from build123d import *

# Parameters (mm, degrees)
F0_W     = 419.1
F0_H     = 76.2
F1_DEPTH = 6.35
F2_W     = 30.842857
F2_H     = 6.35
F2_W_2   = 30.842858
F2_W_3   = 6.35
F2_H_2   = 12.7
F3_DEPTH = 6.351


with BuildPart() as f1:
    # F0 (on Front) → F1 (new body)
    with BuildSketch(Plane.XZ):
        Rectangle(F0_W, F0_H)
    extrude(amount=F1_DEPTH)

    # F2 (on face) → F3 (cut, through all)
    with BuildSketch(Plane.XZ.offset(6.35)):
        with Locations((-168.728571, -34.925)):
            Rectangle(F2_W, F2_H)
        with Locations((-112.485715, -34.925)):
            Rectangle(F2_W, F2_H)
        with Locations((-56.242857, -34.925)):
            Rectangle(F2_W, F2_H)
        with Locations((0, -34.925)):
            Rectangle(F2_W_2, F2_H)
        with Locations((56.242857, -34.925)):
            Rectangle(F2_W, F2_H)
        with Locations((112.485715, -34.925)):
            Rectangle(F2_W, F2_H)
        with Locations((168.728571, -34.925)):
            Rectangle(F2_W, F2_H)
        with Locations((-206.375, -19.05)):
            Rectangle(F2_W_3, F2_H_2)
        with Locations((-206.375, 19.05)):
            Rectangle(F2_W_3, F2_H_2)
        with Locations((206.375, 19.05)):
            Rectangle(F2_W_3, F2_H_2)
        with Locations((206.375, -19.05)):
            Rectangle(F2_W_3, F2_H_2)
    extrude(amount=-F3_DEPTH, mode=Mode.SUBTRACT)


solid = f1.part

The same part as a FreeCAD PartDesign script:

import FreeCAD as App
import Part
import Sketcher

V = App.Vector
Q = App.Units.Quantity

doc = App.newDocument("Part")
body = doc.addObject("PartDesign::Body", "Body")

# Sketch on XZ plane
sketch1 = body.newObject("Sketcher::SketchObject", "Sketch")
sketch1.AttachmentSupport = (doc.getObject("XZ_Plane"), [""])
sketch1.MapMode = "FlatFace"
sketch1.addGeometry([
    Part.LineSegment(V(-210, 38, 0), V(-210, -38, 0)),
    Part.LineSegment(V(-210, -38, 0), V(210, -38, 0)),
    Part.LineSegment(V(210, -38, 0), V(210, 38, 0)),
    Part.LineSegment(V(210, 38, 0), V(-210, 38, 0)),
], False)
sketch1.addConstraint([
    Sketcher.Constraint("Coincident", 0, 2, 1, 1),
    Sketcher.Constraint("Coincident", 1, 2, 2, 1),
    Sketcher.Constraint("Coincident", 2, 2, 3, 1),
    Sketcher.Constraint("Coincident", 3, 2, 0, 1),
    Sketcher.Constraint("Vertical", 0),
    Sketcher.Constraint("Horizontal", 1),
    Sketcher.Constraint("Vertical", 2),
    Sketcher.Constraint("Horizontal", 3),
    Sketcher.Constraint("Symmetric", 0, 2, 2, 2, -1, 1),
    Sketcher.Constraint("DistanceY", 0, 2, 0, 1, Q("3 in")),
    Sketcher.Constraint("DistanceX", 1, 1, 1, 2, Q("16.5 in")),
])
pad1 = body.newObject("PartDesign::Pad", "Pad")
pad1.Profile = sketch1
pad1.Length = Q("0.25 in")

# Sketch on XZ plane
sketch2 = body.newObject("Sketcher::SketchObject", "Sketch001")
sketch2.AttachmentSupport = (doc.getObject("XZ_Plane"), [""])
sketch2.MapMode = "FlatFace"
sketch2.AttachmentOffset = App.Placement(V(0, 0, 0.25 * 25.4), App.Rotation())
sketch2.addGeometry([
    Part.LineSegment(V(-184, -32, 0), V(-184, -38, 0)),  # 0
    Part.LineSegment(V(-184, -38, 0), V(-153, -38, 0)),  # 1
    Part.LineSegment(V(-153, -38, 0), V(-153, -32, 0)),  # 2
    Part.LineSegment(V(-153, -32, 0), V(-184, -32, 0)),  # 3
    Part.LineSegment(V(-128, -32, 0), V(-128, -38, 0)),  # 4
    Part.LineSegment(V(-128, -38, 0), V(-97, -38, 0)),  # 5
    Part.LineSegment(V(-97, -38, 0), V(-97, -32, 0)),  # 6
    Part.LineSegment(V(-97, -32, 0), V(-128, -32, 0)),  # 7
    Part.LineSegment(V(-72, -32, 0), V(-72, -38, 0)),  # 8
    Part.LineSegment(V(-72, -38, 0), V(-41, -38, 0)),  # 9
    Part.LineSegment(V(-41, -38, 0), V(-41, -32, 0)),  # 10
    Part.LineSegment(V(-41, -32, 0), V(-72, -32, 0)),  # 11
    Part.LineSegment(V(-15, -32, 0), V(-15, -38, 0)),  # 12
    Part.LineSegment(V(-15, -38, 0), V(15, -38, 0)),  # 13
    Part.LineSegment(V(15, -38, 0), V(15, -32, 0)),  # 14
    Part.LineSegment(V(15, -32, 0), V(-15, -32, 0)),  # 15
    Part.LineSegment(V(41, -32, 0), V(41, -38, 0)),  # 16
    Part.LineSegment(V(41, -38, 0), V(72, -38, 0)),  # 17
    Part.LineSegment(V(72, -38, 0), V(72, -32, 0)),  # 18
    Part.LineSegment(V(72, -32, 0), V(41, -32, 0)),  # 19
    Part.LineSegment(V(97, -32, 0), V(97, -38, 0)),  # 20
    Part.LineSegment(V(97, -38, 0), V(128, -38, 0)),  # 21
    Part.LineSegment(V(128, -38, 0), V(128, -32, 0)),  # 22
    Part.LineSegment(V(128, -32, 0), V(97, -32, 0)),  # 23
    Part.LineSegment(V(153, -32, 0), V(153, -38, 0)),  # 24
    Part.LineSegment(V(153, -38, 0), V(184, -38, 0)),  # 25
    Part.LineSegment(V(184, -38, 0), V(184, -32, 0)),  # 26
    Part.LineSegment(V(184, -32, 0), V(153, -32, 0)),  # 27
    Part.LineSegment(V(-210, -13, 0), V(-210, -25, 0)),  # 28
    Part.LineSegment(V(-210, -25, 0), V(-203, -25, 0)),  # 29
    Part.LineSegment(V(-203, -25, 0), V(-203, -13, 0)),  # 30
    Part.LineSegment(V(-203, -13, 0), V(-210, -13, 0)),  # 31
    Part.LineSegment(V(-210, 25, 0), V(-210, 13, 0)),  # 32
    Part.LineSegment(V(-210, 13, 0), V(-203, 13, 0)),  # 33
    Part.LineSegment(V(-203, 13, 0), V(-203, 25, 0)),  # 34
    Part.LineSegment(V(-203, 25, 0), V(-210, 25, 0)),  # 35
    Part.LineSegment(V(203, 25, 0), V(203, 13, 0)),  # 36
    Part.LineSegment(V(203, 13, 0), V(210, 13, 0)),  # 37
    Part.LineSegment(V(210, 13, 0), V(210, 25, 0)),  # 38
    Part.LineSegment(V(210, 25, 0), V(203, 25, 0)),  # 39
    Part.LineSegment(V(203, -13, 0), V(203, -25, 0)),  # 40
    Part.LineSegment(V(203, -25, 0), V(210, -25, 0)),  # 41
    Part.LineSegment(V(210, -25, 0), V(210, -13, 0)),  # 42
    Part.LineSegment(V(210, -13, 0), V(203, -13, 0)),  # 43
], False)
sketch2.addConstraint([
    Sketcher.Constraint("Coincident", 0, 2, 1, 1),
    Sketcher.Constraint("Coincident", 1, 2, 2, 1),
    Sketcher.Constraint("Coincident", 2, 2, 3, 1),
    Sketcher.Constraint("Coincident", 3, 2, 0, 1),
    Sketcher.Constraint("Coincident", 4, 2, 5, 1),
    Sketcher.Constraint("Coincident", 5, 2, 6, 1),
    Sketcher.Constraint("Coincident", 6, 2, 7, 1),
    Sketcher.Constraint("Coincident", 7, 2, 4, 1),
    Sketcher.Constraint("Coincident", 8, 2, 9, 1),
    Sketcher.Constraint("Coincident", 9, 2, 10, 1),
    Sketcher.Constraint("Coincident", 10, 2, 11, 1),
    Sketcher.Constraint("Coincident", 11, 2, 8, 1),
    Sketcher.Constraint("Coincident", 12, 2, 13, 1),
    Sketcher.Constraint("Coincident", 13, 2, 14, 1),
    Sketcher.Constraint("Coincident", 14, 2, 15, 1),
    Sketcher.Constraint("Coincident", 15, 2, 12, 1),
    Sketcher.Constraint("Coincident", 16, 2, 17, 1),
    Sketcher.Constraint("Coincident", 17, 2, 18, 1),
    Sketcher.Constraint("Coincident", 18, 2, 19, 1),
    Sketcher.Constraint("Coincident", 19, 2, 16, 1),
    Sketcher.Constraint("Coincident", 20, 2, 21, 1),
    Sketcher.Constraint("Coincident", 21, 2, 22, 1),
    Sketcher.Constraint("Coincident", 22, 2, 23, 1),
    Sketcher.Constraint("Coincident", 23, 2, 20, 1),
    Sketcher.Constraint("Coincident", 24, 2, 25, 1),
    Sketcher.Constraint("Coincident", 25, 2, 26, 1),
    Sketcher.Constraint("Coincident", 26, 2, 27, 1),
    Sketcher.Constraint("Coincident", 27, 2, 24, 1),
    Sketcher.Constraint("Coincident", 28, 2, 29, 1),
    Sketcher.Constraint("Coincident", 29, 2, 30, 1),
    Sketcher.Constraint("Coincident", 30, 2, 31, 1),
    Sketcher.Constraint("Coincident", 31, 2, 28, 1),
    Sketcher.Constraint("Coincident", 32, 2, 33, 1),
    Sketcher.Constraint("Coincident", 33, 2, 34, 1),
    Sketcher.Constraint("Coincident", 34, 2, 35, 1),
    Sketcher.Constraint("Coincident", 35, 2, 32, 1),
    Sketcher.Constraint("Coincident", 36, 2, 37, 1),
    Sketcher.Constraint("Coincident", 37, 2, 38, 1),
    Sketcher.Constraint("Coincident", 38, 2, 39, 1),
    Sketcher.Constraint("Coincident", 39, 2, 36, 1),
    Sketcher.Constraint("Coincident", 40, 2, 41, 1),
    Sketcher.Constraint("Coincident", 41, 2, 42, 1),
    Sketcher.Constraint("Coincident", 42, 2, 43, 1),
    Sketcher.Constraint("Coincident", 43, 2, 40, 1),
    Sketcher.Constraint("Vertical", 0),
    Sketcher.Constraint("Horizontal", 1),
    Sketcher.Constraint("Vertical", 2),
    Sketcher.Constraint("Horizontal", 3),
    Sketcher.Constraint("Vertical", 4),
    Sketcher.Constraint("Horizontal", 5),
    Sketcher.Constraint("Vertical", 6),
    Sketcher.Constraint("Horizontal", 7),
    Sketcher.Constraint("Vertical", 8),
    Sketcher.Constraint("Horizontal", 9),
    Sketcher.Constraint("Vertical", 10),
    Sketcher.Constraint("Horizontal", 11),
    Sketcher.Constraint("Vertical", 12),
    Sketcher.Constraint("Horizontal", 13),
    Sketcher.Constraint("Vertical", 14),
    Sketcher.Constraint("Horizontal", 15),
    Sketcher.Constraint("Vertical", 16),
    Sketcher.Constraint("Horizontal", 17),
    Sketcher.Constraint("Vertical", 18),
    Sketcher.Constraint("Horizontal", 19),
    Sketcher.Constraint("Vertical", 20),
    Sketcher.Constraint("Horizontal", 21),
    Sketcher.Constraint("Vertical", 22),
    Sketcher.Constraint("Horizontal", 23),
    Sketcher.Constraint("Vertical", 24),
    Sketcher.Constraint("Horizontal", 25),
    Sketcher.Constraint("Vertical", 26),
    Sketcher.Constraint("Horizontal", 27),
    Sketcher.Constraint("Vertical", 28),
    Sketcher.Constraint("Horizontal", 29),
    Sketcher.Constraint("Vertical", 30),
    Sketcher.Constraint("Horizontal", 31),
    Sketcher.Constraint("Vertical", 32),
    Sketcher.Constraint("Horizontal", 33),
    Sketcher.Constraint("Vertical", 34),
    Sketcher.Constraint("Horizontal", 35),
    Sketcher.Constraint("Vertical", 36),
    Sketcher.Constraint("Horizontal", 37),
    Sketcher.Constraint("Vertical", 38),
    Sketcher.Constraint("Horizontal", 39),
    Sketcher.Constraint("Vertical", 40),
    Sketcher.Constraint("Horizontal", 41),
    Sketcher.Constraint("Vertical", 42),
    Sketcher.Constraint("Horizontal", 43),
    Sketcher.Constraint("Symmetric", 30, 2, 36, 2, -1, 1),
    Sketcher.Constraint("Symmetric", 28, 2, 38, 2, -1, 1),
    Sketcher.Constraint("Symmetric", 34, 2, 40, 2, -1, 1),
    Sketcher.Constraint("Symmetric", 32, 2, 42, 2, -1, 1),
    Sketcher.Constraint("Symmetric", 9, 2, 16, 2, -2),
    Sketcher.Constraint("Symmetric", 11, 2, 18, 2, -2),
    Sketcher.Constraint("Symmetric", 5, 2, 20, 2, -2),
    Sketcher.Constraint("Symmetric", 7, 2, 22, 2, -2),
    Sketcher.Constraint("Symmetric", 1, 2, 24, 2, -2),
    Sketcher.Constraint("Symmetric", 3, 2, 26, 2, -2),
    Sketcher.Constraint("Symmetric", 33, 2, 36, 2, -2),
    Sketcher.Constraint("Symmetric", 35, 2, 38, 2, -2),
    Sketcher.Constraint("Horizontal", 1, 2, 4, 2),
    Sketcher.Constraint("Horizontal", 3, 2, 6, 2),
    Sketcher.Constraint("Horizontal", 5, 2, 8, 2),
    Sketcher.Constraint("Horizontal", 7, 2, 10, 2),
    Sketcher.Constraint("Horizontal", 9, 2, 12, 2),
    Sketcher.Constraint("Horizontal", 11, 2, 14, 2),
    Sketcher.Constraint("Equal", 3, 5),
    Sketcher.Constraint("Equal", 7, 9),
    Sketcher.Constraint("Equal", 11, 13),
    Sketcher.Constraint("Equal", 43, 0),
    Sketcher.Constraint("DistanceY", 28, 2, 28, 1, Q("0.5 in")),
    Sketcher.Constraint("DistanceY", 28, 2, -1, 1, Q("1 in")),
    Sketcher.Constraint("DistanceX", 29, 2, -1, 1, Q("8 in")),
    Sketcher.Constraint("DistanceX", 1, 2, 4, 2, Q("1 in")),
    Sketcher.Constraint("DistanceX", 5, 2, 8, 2, Q("1 in")),
    Sketcher.Constraint("DistanceX", 9, 2, 12, 2, Q("1 in")),
    Sketcher.Constraint("DistanceX", 13, 2, 16, 2, Q("1 in")),
    Sketcher.Constraint("DistanceX", 28, 2, 3, 2, Q("1 in")),
    Sketcher.Constraint("DistanceY", 0, 2, 30, 2, Q("1 in")),
    Sketcher.Constraint("DistanceX", 29, 1, 29, 2, Q("0.25 in")),
])
pocket1 = body.newObject("PartDesign::Pocket", "Pocket")
pocket1.Profile = sketch2
pocket1.Type = "ThroughAll"

doc.recompute()
